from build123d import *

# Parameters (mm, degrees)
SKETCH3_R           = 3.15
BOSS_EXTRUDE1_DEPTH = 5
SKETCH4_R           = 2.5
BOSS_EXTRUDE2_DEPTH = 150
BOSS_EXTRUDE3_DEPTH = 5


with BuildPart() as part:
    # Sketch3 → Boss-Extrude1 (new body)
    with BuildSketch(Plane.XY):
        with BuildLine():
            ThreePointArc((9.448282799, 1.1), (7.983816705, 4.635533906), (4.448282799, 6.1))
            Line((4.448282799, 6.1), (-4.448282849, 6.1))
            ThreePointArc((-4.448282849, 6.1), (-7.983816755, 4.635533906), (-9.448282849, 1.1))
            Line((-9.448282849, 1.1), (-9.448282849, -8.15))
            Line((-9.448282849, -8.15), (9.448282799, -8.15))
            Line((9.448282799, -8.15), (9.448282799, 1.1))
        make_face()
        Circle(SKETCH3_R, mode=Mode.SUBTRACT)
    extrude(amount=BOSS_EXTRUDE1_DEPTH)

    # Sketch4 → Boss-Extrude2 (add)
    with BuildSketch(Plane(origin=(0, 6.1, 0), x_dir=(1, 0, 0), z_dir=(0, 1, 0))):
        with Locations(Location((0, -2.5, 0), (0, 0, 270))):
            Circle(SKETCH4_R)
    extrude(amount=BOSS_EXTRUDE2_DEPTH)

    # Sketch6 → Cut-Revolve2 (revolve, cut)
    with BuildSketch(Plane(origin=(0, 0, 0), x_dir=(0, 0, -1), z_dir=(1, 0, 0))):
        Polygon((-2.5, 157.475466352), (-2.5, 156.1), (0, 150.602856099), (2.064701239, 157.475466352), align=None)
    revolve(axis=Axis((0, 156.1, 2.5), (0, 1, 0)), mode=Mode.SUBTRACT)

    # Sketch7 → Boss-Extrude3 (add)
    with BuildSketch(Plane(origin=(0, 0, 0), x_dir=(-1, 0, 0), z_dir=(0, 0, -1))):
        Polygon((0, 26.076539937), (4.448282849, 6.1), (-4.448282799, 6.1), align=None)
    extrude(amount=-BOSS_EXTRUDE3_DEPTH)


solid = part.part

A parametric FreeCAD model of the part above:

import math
import FreeCAD as App
import Part
import Sketcher

doc = App.newDocument("Part")
body = doc.addObject("PartDesign::Body", "Body")

sketch1 = body.newObject("Sketcher::SketchObject", "Sketch")
sketch1.AttachmentSupport = (doc.getObject("XY_Plane"), [""])
sketch1.MapMode = "FlatFace"
sketch1.addGeometry(Part.ArcOfCircle(Part.Circle(App.Vector(4.4, 1.1, 0), App.Vector(0, 0, 1), 5), math.radians(0), math.radians(90)), False)
sketch1.addGeometry(Part.LineSegment(App.Vector(4.4, 6.1, 0), App.Vector(-4.4, 6.1, 0)), False)
sketch1.addGeometry(Part.ArcOfCircle(Part.Circle(App.Vector(-4.4, 1.1, 0), App.Vector(0, 0, 1), 5), math.radians(90), math.radians(180)), False)
sketch1.addGeometry(Part.LineSegment(App.Vector(-9.4, 1.1, 0), App.Vector(-9.4, -8.2, 0)), False)
sketch1.addGeometry(Part.LineSegment(App.Vector(-9.4, -8.2, 0), App.Vector(9.4, -8.2, 0)), False)
sketch1.addGeometry(Part.LineSegment(App.Vector(9.4, -8.2, 0), App.Vector(9.4, 1.1, 0)), False)
sketch1.addGeometry(Part.Circle(App.Vector(0, 0, 0), App.Vector(0, 0, 1), 3.1), False)
sketch1.addConstraint(Sketcher.Constraint("Tangent", 0, 2, 1, 1))
sketch1.addConstraint(Sketcher.Constraint("Tangent", 1, 2, 2, 1))
sketch1.addConstraint(Sketcher.Constraint("Tangent", 2, 2, 3, 1))
sketch1.addConstraint(Sketcher.Constraint("Coincident", 3, 2, 4, 1))
sketch1.addConstraint(Sketcher.Constraint("Coincident", 4, 2, 5, 1))
sketch1.addConstraint(Sketcher.Constraint("Tangent", 5, 2, 0, 1))
sketch1.addConstraint(Sketcher.Constraint("Horizontal", 1))
sketch1.addConstraint(Sketcher.Constraint("Vertical", 3))
sketch1.addConstraint(Sketcher.Constraint("Horizontal", 4))
sketch1.addConstraint(Sketcher.Constraint("Vertical", 5))
sketch1.addConstraint(Sketcher.Constraint("Coincident", 6, 3, -1, 1))
sketch1.addConstraint(Sketcher.Constraint("Equal", 0, 2))
sketch1.addConstraint(Sketcher.Constraint("Radius", 0, 5.0))
sketch1.addConstraint(Sketcher.Constraint("Diameter", 6, 6.3))
sketch1.addConstraint(Sketcher.Constraint("DistanceY", 3, 2, 3, 1, 9.25))
sketch1.addConstraint(Sketcher.Constraint("DistanceY", -1, 1, 0, 3, 1.1))
sketch1.addConstraint(Sketcher.Constraint("DistanceX", 1, 2, 1, 1, 8.896566))
sketch1.addConstraint(Sketcher.Constraint("DistanceX", -1, 1, 0, 3, 4.448283))
pad1 = body.newObject("PartDesign::Pad", "Pad")
pad1.Profile = sketch1
pad1.Length = 5

sketch2 = body.newObject("Sketcher::SketchObject", "Sketch001")
sketch2.AttachmentSupport = (doc.getObject("XZ_Plane"), [""])
sketch2.MapMode = "FlatFace"
sketch2.AttachmentOffset = App.Placement(App.Vector(0, 0, -6.1), App.Rotation())
sketch2.addGeometry(Part.Circle(App.Vector(0, 2.5, 0), App.Vector(0, 0, 1), 2.5), False)
sketch2.addConstraint(Sketcher.Constraint("PointOnObject", 0, 3, -2))
sketch2.addConstraint(Sketcher.Constraint("Diameter", 0, 5.0))
sketch2.addConstraint(Sketcher.Constraint("DistanceY", -1, 1, 0, 3, 2.5))
pad2 = body.newObject("PartDesign::Pad", "Pad001")
pad2.Profile = sketch2
pad2.Length = 150
pad2.Reversed = True

sketch3 = body.newObject("Sketcher::SketchObject", "Sketch002")
sketch3.AttachmentSupport = (doc.getObject("YZ_Plane"), [""])
sketch3.MapMode = "FlatFace"
sketch3.addGeometry(Part.LineSegment(App.Vector(157.5, 2.5, 0), App.Vector(156.1, 2.5, 0)), False)
sketch3.addGeometry(Part.LineSegment(App.Vector(156.1, 2.5, 0), App.Vector(150.6, 0, 0)), False)
sketch3.addGeometry(Part.LineSegment(App.Vector(150.6, 0, 0), App.Vector(157.5, -2.1, 0)), False)
sketch3.addGeometry(Part.LineSegment(App.Vector(157.5, -2.1, 0), App.Vector(157.5, 2.5, 0)), False)
sketch3.addGeometry(Part.LineSegment(App.Vector(150.6, 2.5, 0), App.Vector(157.5, 2.5, 0)), True)
sketch3.addConstraint(Sketcher.Constraint("Coincident", 0, 2, 1, 1))
sketch3.addConstraint(Sketcher.Constraint("Coincident", 1, 2, 2, 1))
sketch3.addConstraint(Sketcher.Constraint("Coincident", 2, 2, 3, 1))
sketch3.addConstraint(Sketcher.Constraint("Coincident", 3, 2, 0, 1))
sketch3.addConstraint(Sketcher.Constraint("Horizontal", 0))
sketch3.addConstraint(Sketcher.Constraint("Vertical", 3))
sketch3.addConstraint(Sketcher.Constraint("Horizontal", 4))
sketch3.addConstraint(Sketcher.Constraint("Coincident", 4, 2, 3, 2))
sketch3.addConstraint(Sketcher.Constraint("PointOnObject", 1, 2, -1))
sketch3.addConstraint(Sketcher.Constraint("Vertical", 1, 2, 4, 1))
sketch3.addConstraint(Sketcher.Constraint("DistanceX", -1, 1, 0, 2, 156.1))
sketch3.addConstraint(Sketcher.Constraint("DistanceY", -1, 1, 0, 2, 2.5))
sketch3.addConstraint(Sketcher.Constraint("DistanceY", 3, 1, 3, 2, 4.564701))
sketch3.addConstraint(Sketcher.Constraint("DistanceX", 4, 1, 4, 2, 6.87261))
sketch3.addConstraint(Sketcher.Constraint("DistanceX", 0, 2, 0, 1, 1.375466))
groove = body.newObject("PartDesign::Groove", "Groove")
groove.Profile = sketch3
groove.ReferenceAxis = (sketch3, ["Axis0"])
groove.Angle = 360

sketch4 = body.newObject("Sketcher::SketchObject", "Sketch003")
sketch4.AttachmentSupport = (doc.getObject("XY_Plane"), [""])
sketch4.MapMode = "FlatFace"
sketch4.addGeometry(Part.LineSegment(App.Vector(-4, 6, 0), App.Vector(0, 26, 0)), False)
sketch4.addGeometry(Part.LineSegment(App.Vector(0, 26, 0), App.Vector(4, 6, 0)), False)
sketch4.addGeometry(Part.LineSegment(App.Vector(4, 6, 0), App.Vector(-4, 6, 0)), False)
sketch4.addConstraint(Sketcher.Constraint("Coincident", 0, 2, 1, 1))
sketch4.addConstraint(Sketcher.Constraint("Coincident", 1, 2, 2, 1))
sketch4.addConstraint(Sketcher.Constraint("Coincident", 2, 2, 0, 1))
sketch4.addConstraint(Sketcher.Constraint("Horizontal", 2))
sketch4.addConstraint(Sketcher.Constraint("PointOnObject", 0, 2, -2))
sketch4.addConstraint(Sketcher.Constraint("Equal", 0, 1))
sketch4.addConstraint(Sketcher.Constraint("DistanceY", -1, 1, 1, 2, 6.1))
sketch4.addConstraint(Sketcher.Constraint("Distance", 0, 20.46581))
sketch4.addConstraint(Sketcher.Constraint("DistanceX", 2, 2, 2, 1, 8.896566))
pad3 = body.newObject("PartDesign::Pad", "Pad002")
pad3.Profile = sketch4
pad3.Length = 5

doc.recompute()
